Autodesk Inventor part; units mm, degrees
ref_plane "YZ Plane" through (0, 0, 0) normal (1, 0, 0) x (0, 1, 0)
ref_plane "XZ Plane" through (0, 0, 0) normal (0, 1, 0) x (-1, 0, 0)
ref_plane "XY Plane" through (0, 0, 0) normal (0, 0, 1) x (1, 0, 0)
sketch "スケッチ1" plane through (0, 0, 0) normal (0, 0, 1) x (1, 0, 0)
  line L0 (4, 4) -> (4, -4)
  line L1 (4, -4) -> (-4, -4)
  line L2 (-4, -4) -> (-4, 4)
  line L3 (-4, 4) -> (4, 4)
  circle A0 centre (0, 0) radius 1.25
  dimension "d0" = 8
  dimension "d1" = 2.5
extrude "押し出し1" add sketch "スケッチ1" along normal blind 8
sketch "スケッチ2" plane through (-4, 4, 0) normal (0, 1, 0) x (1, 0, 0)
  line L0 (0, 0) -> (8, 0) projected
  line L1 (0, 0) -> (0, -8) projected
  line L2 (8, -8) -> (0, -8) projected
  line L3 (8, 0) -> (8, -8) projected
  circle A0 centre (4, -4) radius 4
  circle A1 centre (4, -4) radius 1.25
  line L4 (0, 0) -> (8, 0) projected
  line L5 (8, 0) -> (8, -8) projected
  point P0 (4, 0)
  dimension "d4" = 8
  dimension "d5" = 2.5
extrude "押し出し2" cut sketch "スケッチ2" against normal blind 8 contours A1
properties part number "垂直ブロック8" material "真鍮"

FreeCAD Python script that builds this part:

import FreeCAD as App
import Part
import Sketcher
from FreeCAD import Vector

doc = App.newDocument("Part")
body = doc.addObject("PartDesign::Body", "Body")

sketch1 = doc.addObject("Sketcher::SketchObject", "Sketch")
body.addObject(sketch1)
sketch1.AttachmentSupport = (doc.XY_Plane, [""])
sketch1.MapMode = "FlatFace"
sketch1.addGeometry(Part.LineSegment(Vector(4, -4, 0), Vector(4, 4, 0)), False)
sketch1.addGeometry(Part.LineSegment(Vector(4, 4, 0), Vector(-4, 4, 0)), False)
sketch1.addGeometry(Part.LineSegment(Vector(-4, 4, 0), Vector(-4, -4, 0)), False)
sketch1.addGeometry(Part.LineSegment(Vector(-4, -4, 0), Vector(4, -4, 0)), False)
sketch1.addGeometry(Part.Circle(Vector(0, 0, 0), Vector(0, 0, 1), 1.2), False)
sketch1.addConstraint(Sketcher.Constraint("Coincident", 0, 2, 1, 1))
sketch1.addConstraint(Sketcher.Constraint("Coincident", 1, 2, 2, 1))
sketch1.addConstraint(Sketcher.Constraint("Coincident", 2, 2, 3, 1))
sketch1.addConstraint(Sketcher.Constraint("Coincident", 3, 2, 0, 1))
sketch1.addConstraint(Sketcher.Constraint("Vertical", 0))
sketch1.addConstraint(Sketcher.Constraint("Horizontal", 1))
sketch1.addConstraint(Sketcher.Constraint("Vertical", 2))
sketch1.addConstraint(Sketcher.Constraint("Horizontal", 3))
sketch1.addConstraint(Sketcher.Constraint("Coincident", 4, 3, -1, 1))
sketch1.addConstraint(Sketcher.Constraint("Symmetric", 0, 2, 2, 2, -1, 1))
sketch1.addConstraint(Sketcher.Constraint("Equal", 3, 0))
sketch1.addConstraint(Sketcher.Constraint("Diameter", 4, 2.5))
sketch1.addConstraint(Sketcher.Constraint("DistanceX", 1, 2, 1, 1, 8.0))
pad1 = doc.addObject("PartDesign::Pad", "Pad")
body.addObject(pad1)
pad1.Profile = sketch1
pad1.Length = 8

sketch2 = doc.addObject("Sketcher::SketchObject", "Sketch001")
body.addObject(sketch2)
sketch2.AttachmentSupport = (doc.XZ_Plane, [""])
sketch2.MapMode = "FlatFace"
sketch2.AttachmentOffset = App.Placement(Vector(0, 0, -4), App.Rotation())
sketch2.addGeometry(Part.Circle(Vector(0, 4, 0), Vector(0, 0, 1), 1.2), False)
sketch2.addConstraint(Sketcher.Constraint("PointOnObject", 0, 3, -2))
sketch2.addConstraint(Sketcher.Constraint("Diameter", 0, 2.5))
sketch2.addConstraint(Sketcher.Constraint("DistanceY", -1, 1, 0, 3, 4.0))
pocket1 = doc.addObject("PartDesign::Pocket", "Pocket")
body.addObject(pocket1)
pocket1.Profile = sketch2
pocket1.Length = 8
pocket1.Reversed = True

doc.recompute()
